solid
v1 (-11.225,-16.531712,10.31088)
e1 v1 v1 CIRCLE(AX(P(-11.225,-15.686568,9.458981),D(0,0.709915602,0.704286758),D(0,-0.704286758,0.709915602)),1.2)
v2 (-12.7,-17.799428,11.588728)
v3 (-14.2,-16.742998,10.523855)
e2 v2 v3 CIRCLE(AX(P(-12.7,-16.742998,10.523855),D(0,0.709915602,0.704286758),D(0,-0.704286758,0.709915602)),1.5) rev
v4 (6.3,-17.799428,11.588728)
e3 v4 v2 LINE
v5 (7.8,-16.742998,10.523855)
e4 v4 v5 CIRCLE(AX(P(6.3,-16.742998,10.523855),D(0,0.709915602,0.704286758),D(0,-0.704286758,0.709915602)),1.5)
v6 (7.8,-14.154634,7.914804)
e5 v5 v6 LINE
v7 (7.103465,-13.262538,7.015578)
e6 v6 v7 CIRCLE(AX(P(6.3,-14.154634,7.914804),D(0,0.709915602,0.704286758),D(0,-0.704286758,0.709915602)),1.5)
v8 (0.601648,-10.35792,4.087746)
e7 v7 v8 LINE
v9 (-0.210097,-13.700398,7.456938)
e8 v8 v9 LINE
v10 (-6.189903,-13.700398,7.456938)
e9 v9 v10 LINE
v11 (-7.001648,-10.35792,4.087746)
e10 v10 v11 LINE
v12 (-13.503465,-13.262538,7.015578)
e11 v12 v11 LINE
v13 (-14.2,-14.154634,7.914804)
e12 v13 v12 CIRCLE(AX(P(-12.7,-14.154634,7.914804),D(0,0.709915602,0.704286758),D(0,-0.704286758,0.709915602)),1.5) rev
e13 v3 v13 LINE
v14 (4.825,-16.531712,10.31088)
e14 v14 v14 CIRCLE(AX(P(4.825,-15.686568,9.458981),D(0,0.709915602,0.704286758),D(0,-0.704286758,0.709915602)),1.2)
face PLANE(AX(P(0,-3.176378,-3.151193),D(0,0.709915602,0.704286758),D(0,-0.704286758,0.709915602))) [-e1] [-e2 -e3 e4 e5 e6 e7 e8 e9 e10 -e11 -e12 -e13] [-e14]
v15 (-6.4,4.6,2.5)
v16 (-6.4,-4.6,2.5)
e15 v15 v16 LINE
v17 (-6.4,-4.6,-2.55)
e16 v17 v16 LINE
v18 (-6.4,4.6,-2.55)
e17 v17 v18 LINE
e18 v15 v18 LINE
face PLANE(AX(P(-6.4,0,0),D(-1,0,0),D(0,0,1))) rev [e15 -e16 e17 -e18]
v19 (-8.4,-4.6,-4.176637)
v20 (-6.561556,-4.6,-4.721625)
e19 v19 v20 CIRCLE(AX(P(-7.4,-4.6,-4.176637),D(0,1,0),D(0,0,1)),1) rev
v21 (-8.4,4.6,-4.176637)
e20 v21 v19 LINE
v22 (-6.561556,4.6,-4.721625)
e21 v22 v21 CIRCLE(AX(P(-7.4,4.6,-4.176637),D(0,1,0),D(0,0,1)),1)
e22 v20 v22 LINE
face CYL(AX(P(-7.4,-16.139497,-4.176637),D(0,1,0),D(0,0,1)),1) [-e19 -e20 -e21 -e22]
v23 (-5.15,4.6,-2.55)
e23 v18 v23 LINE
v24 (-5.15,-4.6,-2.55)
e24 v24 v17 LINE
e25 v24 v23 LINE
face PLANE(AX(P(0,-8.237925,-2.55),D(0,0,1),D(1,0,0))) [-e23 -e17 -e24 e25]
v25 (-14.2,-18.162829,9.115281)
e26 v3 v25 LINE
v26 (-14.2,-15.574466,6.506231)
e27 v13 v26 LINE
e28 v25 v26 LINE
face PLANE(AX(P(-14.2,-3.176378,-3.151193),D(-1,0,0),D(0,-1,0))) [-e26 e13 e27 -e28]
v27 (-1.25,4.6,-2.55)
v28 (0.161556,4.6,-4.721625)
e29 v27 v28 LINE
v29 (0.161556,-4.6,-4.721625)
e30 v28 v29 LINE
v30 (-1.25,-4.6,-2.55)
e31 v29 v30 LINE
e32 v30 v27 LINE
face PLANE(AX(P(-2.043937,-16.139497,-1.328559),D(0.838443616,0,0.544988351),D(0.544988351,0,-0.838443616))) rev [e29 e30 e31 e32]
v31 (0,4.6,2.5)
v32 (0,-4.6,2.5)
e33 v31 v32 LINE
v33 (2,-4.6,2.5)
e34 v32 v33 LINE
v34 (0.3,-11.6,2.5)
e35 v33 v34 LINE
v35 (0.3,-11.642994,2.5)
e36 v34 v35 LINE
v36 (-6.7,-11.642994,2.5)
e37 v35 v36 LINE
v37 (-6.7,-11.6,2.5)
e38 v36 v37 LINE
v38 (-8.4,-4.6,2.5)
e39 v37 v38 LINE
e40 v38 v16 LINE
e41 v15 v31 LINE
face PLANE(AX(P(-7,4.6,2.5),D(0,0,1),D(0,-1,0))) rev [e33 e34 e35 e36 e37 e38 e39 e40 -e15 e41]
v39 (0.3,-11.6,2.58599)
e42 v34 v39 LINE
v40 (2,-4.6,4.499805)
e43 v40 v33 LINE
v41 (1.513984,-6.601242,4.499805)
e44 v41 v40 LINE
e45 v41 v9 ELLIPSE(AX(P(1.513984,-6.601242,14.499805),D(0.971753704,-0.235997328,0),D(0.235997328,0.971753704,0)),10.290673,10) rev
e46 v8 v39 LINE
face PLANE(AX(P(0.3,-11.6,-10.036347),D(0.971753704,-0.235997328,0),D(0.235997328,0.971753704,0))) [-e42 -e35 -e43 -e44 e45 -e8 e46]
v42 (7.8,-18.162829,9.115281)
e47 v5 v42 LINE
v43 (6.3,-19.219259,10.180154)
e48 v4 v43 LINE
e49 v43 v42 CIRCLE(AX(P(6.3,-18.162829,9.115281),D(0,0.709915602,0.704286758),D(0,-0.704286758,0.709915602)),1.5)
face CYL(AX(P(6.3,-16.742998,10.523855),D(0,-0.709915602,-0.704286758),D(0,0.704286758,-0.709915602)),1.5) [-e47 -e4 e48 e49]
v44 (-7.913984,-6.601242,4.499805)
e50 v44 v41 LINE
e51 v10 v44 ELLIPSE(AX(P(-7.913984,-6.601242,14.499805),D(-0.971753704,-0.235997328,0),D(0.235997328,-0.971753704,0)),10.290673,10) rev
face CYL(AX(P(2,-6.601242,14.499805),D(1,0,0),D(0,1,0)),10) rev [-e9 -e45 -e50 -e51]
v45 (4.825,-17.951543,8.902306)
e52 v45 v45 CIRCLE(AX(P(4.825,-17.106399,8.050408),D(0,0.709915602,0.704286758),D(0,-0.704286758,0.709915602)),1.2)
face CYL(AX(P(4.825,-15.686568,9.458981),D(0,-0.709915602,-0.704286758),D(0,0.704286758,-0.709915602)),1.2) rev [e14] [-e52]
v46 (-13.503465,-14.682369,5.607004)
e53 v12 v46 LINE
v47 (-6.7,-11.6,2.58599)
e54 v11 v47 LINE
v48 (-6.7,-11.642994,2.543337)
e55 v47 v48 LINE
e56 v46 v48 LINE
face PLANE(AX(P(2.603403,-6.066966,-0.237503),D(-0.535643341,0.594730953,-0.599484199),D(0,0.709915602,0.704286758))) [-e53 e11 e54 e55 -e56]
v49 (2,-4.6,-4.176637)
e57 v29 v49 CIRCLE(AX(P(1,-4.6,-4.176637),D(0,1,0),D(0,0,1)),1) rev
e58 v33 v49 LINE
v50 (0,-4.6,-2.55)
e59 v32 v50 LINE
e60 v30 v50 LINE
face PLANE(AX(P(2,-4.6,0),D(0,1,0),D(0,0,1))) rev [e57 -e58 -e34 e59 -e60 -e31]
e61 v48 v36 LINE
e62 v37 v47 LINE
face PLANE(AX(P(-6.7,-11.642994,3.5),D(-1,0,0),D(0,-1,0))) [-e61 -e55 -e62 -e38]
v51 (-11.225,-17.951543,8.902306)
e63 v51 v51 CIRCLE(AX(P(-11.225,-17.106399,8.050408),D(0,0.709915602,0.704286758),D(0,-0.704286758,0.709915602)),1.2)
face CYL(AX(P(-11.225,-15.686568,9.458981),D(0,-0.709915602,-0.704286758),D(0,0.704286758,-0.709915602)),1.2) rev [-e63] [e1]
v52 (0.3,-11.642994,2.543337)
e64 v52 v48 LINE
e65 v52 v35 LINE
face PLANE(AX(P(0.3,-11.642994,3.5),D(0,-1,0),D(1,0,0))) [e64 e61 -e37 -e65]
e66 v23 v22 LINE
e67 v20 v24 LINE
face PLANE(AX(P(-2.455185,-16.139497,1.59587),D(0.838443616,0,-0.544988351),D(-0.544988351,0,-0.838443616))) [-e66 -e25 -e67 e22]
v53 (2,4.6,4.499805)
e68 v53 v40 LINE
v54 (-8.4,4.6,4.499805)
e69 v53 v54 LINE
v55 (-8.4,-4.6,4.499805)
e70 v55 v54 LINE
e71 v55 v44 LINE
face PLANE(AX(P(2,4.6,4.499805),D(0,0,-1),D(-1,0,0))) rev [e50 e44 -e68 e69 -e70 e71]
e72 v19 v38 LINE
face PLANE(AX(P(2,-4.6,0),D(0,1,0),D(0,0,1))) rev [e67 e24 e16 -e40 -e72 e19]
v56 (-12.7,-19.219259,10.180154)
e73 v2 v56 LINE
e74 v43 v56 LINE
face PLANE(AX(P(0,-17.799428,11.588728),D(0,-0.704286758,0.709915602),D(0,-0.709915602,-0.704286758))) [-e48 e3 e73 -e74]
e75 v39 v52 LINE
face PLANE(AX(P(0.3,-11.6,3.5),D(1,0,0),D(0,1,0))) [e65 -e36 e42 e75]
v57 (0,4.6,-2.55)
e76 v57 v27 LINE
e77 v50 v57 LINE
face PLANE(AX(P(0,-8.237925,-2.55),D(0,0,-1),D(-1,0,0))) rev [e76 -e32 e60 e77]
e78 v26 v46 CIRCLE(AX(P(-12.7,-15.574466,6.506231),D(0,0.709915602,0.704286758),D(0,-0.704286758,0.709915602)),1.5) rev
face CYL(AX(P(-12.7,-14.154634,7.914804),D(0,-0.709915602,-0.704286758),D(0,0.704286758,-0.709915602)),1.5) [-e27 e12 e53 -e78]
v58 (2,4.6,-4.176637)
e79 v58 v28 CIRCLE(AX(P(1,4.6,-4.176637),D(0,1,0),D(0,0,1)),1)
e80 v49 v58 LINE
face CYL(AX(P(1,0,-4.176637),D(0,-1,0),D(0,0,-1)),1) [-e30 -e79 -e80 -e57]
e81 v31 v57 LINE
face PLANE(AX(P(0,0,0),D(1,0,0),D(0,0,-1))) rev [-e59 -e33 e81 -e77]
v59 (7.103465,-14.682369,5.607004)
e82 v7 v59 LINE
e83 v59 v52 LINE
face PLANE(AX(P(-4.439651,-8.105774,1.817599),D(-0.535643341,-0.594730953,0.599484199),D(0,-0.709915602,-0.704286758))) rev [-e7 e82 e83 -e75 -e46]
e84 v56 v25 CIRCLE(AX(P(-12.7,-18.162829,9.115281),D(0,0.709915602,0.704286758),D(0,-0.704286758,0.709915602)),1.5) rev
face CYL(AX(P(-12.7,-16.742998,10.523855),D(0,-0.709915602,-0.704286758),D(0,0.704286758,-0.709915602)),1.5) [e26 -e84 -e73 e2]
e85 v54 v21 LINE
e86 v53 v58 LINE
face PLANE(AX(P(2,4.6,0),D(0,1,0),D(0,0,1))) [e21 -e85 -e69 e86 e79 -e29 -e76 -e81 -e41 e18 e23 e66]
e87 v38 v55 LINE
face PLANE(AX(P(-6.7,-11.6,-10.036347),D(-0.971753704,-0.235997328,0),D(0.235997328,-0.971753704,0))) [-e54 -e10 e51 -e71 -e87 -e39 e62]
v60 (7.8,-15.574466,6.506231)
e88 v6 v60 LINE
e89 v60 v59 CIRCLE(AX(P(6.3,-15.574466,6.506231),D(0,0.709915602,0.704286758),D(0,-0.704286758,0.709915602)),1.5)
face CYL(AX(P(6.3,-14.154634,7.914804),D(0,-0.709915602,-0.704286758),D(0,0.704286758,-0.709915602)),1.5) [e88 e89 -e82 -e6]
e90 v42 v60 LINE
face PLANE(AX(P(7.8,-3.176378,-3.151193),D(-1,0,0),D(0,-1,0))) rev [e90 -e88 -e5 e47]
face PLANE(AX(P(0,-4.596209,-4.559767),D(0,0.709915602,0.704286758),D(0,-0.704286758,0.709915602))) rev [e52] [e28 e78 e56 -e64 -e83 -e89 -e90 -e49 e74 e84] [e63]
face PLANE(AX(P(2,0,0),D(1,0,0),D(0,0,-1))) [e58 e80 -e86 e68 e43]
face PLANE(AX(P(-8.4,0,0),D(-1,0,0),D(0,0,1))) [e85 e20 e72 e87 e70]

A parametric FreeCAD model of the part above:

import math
import FreeCAD as App
import Part
import Sketcher
from FreeCAD import Vector


def edges_at(feature, points):
    """Names of the edges that pass closest to the given points."""
    edges = feature.Shape.Edges
    near = lambda p: min(range(len(edges)), key=lambda i: edges[i].distToShape(Part.Vertex(*p))[0])
    return sorted({f"Edge{near(p) + 1}" for p in points})


def add_polygon(sketch, points):
    """Adds a closed chain of lines whose ends are joined by coincident constraints."""
    first, n = sketch.GeometryCount, len(points)
    for a, b in zip(points, points[1:] + points[:1]):
        sketch.addGeometry(Part.LineSegment(App.Vector(*a, 0), App.Vector(*b, 0)), False)
    for i in range(n):
        sketch.addConstraint(Sketcher.Constraint("Coincident", first + i, 2, first + (i + 1) % n, 1))

doc = App.newDocument("Part")
body = doc.addObject("PartDesign::Body", "Body")

# Sketch on YZ plane
sketch1 = body.newObject("Sketcher::SketchObject", "Sketch")
sketch1.AttachmentSupport = (doc.getObject("YZ_Plane"), [""])
sketch1.MapMode = "FlatFace"
add_polygon(sketch1, [(4.6, 4.499805), (-4.6, 4.499805), (-4.6, -4.499805), (4.6, -4.499805)])  # lines 0-3
sketch1.addConstraint(Sketcher.Constraint("Horizontal", 0))
sketch1.addConstraint(Sketcher.Constraint("Vertical", 1))
sketch1.addConstraint(Sketcher.Constraint("Horizontal", 2))
sketch1.addConstraint(Sketcher.Constraint("Vertical", 3))
sketch1.addConstraint(Sketcher.Constraint("Symmetric", 0, 2, 2, 2, -1, 1))
sketch1.addConstraint(Sketcher.Constraint("DistanceX", 0, 2, 0, 1, 9.2))
sketch1.addConstraint(Sketcher.Constraint("DistanceY", 1, 2, 1, 1, 8.999611))
pad1 = body.newObject("PartDesign::Pad", "Pad")
pad1.Profile = sketch1
pad1.Length = 2
body2 = doc.addObject("PartDesign::Body", "Body001")

# Sketch on YZ plane
sketch2 = body2.newObject("Sketcher::SketchObject", "Sketch001")
sketch2.AttachmentSupport = (doc.getObject("YZ_Plane001"), [""])
sketch2.MapMode = "FlatFace"
sketch2.AttachmentOffset = App.Placement(Vector(0, 0, -6.4), App.Rotation())
add_polygon(sketch2, [(4.6, -4.499805), (-4.6, -4.499805), (-4.6, 4.499805), (4.6, 4.499805)])  # lines 0-3
sketch2.addConstraint(Sketcher.Constraint("Horizontal", 0))
sketch2.addConstraint(Sketcher.Constraint("Vertical", 1))
sketch2.addConstraint(Sketcher.Constraint("Horizontal", 2))
sketch2.addConstraint(Sketcher.Constraint("Vertical", 3))
sketch2.addConstraint(Sketcher.Constraint("Symmetric", 0, 2, 2, 2, -1, 1))
sketch2.addConstraint(Sketcher.Constraint("DistanceX", 0, 2, 0, 1, 9.2))
sketch2.addConstraint(Sketcher.Constraint("DistanceY", 1, 1, 1, 2, 8.999611))
pad2 = body2.newObject("PartDesign::Pad", "Pad001")
pad2.Profile = sketch2
pad2.Length = 2
pad2.Reversed = True
body.AllowCompound = True
doc.recompute()

boolean = body.newObject("PartDesign::Boolean", "Boolean")
boolean.Type = "Fuse"
boolean.addObjects([body2])

# Sketch on YZ plane
sketch3 = body.newObject("Sketcher::SketchObject", "Sketch002")
sketch3.AttachmentSupport = (doc.getObject("YZ_Plane"), [""])
sketch3.MapMode = "FlatFace"
add_polygon(sketch3, [(4.6, 2.5), (-4.6, 2.5), (-4.6, 4.499805), (4.6, 4.499805)])  # lines 0-3
sketch3.addConstraint(Sketcher.Constraint("Horizontal", 0))
sketch3.addConstraint(Sketcher.Constraint("Vertical", 1))
sketch3.addConstraint(Sketcher.Constraint("Horizontal", 2))
sketch3.addConstraint(Sketcher.Constraint("Vertical", 3))
sketch3.addConstraint(Sketcher.Constraint("DistanceX", 0, 2, 0, 1, 9.2))
sketch3.addConstraint(Sketcher.Constraint("DistanceX", 0, 2, -1, 1, 4.6))
sketch3.addConstraint(Sketcher.Constraint("DistanceY", -1, 1, 0, 2, 2.5))
sketch3.addConstraint(Sketcher.Constraint("DistanceY", 1, 1, 1, 2, 1.999805))
pad3 = body.newObject("PartDesign::Pad", "Pad002")
pad3.Profile = sketch3
pad3.Length = 7
pad3.Reversed = True

# Sketch on XZ plane
sketch4 = body.newObject("Sketcher::SketchObject", "Sketch003")
sketch4.AttachmentSupport = (doc.getObject("XZ_Plane"), [""])
sketch4.MapMode = "FlatFace"
sketch4.AttachmentOffset = App.Placement(Vector(0, 0, -4.6), App.Rotation())
add_polygon(sketch4, [(-5.15, -2.55), (-1.25, -2.55), (0, -4.473077), (0.017373, -4.499805), (2, -7.55), (-8.4, -7.55), (-6.417373, -4.499805), (-6.4, -4.473077)])  # lines 0-7
sketch4.addConstraint(Sketcher.Constraint("Horizontal", 0))
sketch4.addConstraint(Sketcher.Constraint("Horizontal", 4))
sketch4.addConstraint(Sketcher.Constraint("PointOnObject", 1, 2, -2))
sketch4.addConstraint(Sketcher.Constraint("Parallel", 1, 2))
sketch4.addConstraint(Sketcher.Constraint("Parallel", 2, 3))
sketch4.addConstraint(Sketcher.Constraint("Parallel", 5, 6))
sketch4.addConstraint(Sketcher.Constraint("Parallel", 6, 7))
sketch4.addConstraint(Sketcher.Constraint("Horizontal", 2, 2, 5, 2))
sketch4.addConstraint(Sketcher.Constraint("Horizontal", 1, 2, 6, 2))
sketch4.addConstraint(Sketcher.Constraint("Equal", 3, 5))
sketch4.addConstraint(Sketcher.Constraint("DistanceX", 0, 1, 0, 2, 3.9))
sketch4.addConstraint(Sketcher.Constraint("DistanceX", 4, 2, 4, 1, 10.4))
sketch4.addConstraint(Sketcher.Constraint("DistanceX", -1, 1, 3, 2, 2.0))
sketch4.addConstraint(Sketcher.Constraint("DistanceY", 3, 2, 0, 2, 5.0))
sketch4.addConstraint(Sketcher.Constraint("DistanceY", 0, 2, -1, 1, 2.55))
sketch4.addConstraint(Sketcher.Constraint("Distance", 2, 0.031879))
pocket1 = body.newObject("PartDesign::Pocket", "Pocket")
pocket1.Profile = sketch4
pocket1.Length = 9.2
pocket1.Reversed = True

# Sketch on XZ plane
sketch5 = body.newObject("Sketcher::SketchObject", "Sketch004")
sketch5.AttachmentSupport = (doc.getObject("XZ_Plane"), [""])
sketch5.MapMode = "FlatFace"
sketch5.AttachmentOffset = App.Placement(Vector(0, 0, -4.6), App.Rotation())
add_polygon(sketch5, [(-6.4, -2.55), (-5.15, -2.55), (-6.4, -4.473077)])  # lines 0-2
add_polygon(sketch5, [(-8.4, -4.499805), (-6.417373, -4.499805), (-8.4, -7.55)])  # lines 3-5
add_polygon(sketch5, [(-1.25, -2.55), (0, -2.55), (0, -4.473077)])  # lines 6-8
add_polygon(sketch5, [(0.017373, -4.499805), (2, -4.499805), (2, -7.55)])  # lines 9-11
sketch5.addConstraint(Sketcher.Constraint("Horizontal", 0))
sketch5.addConstraint(Sketcher.Constraint("Vertical", 2))
sketch5.addConstraint(Sketcher.Constraint("Horizontal", 3))
sketch5.addConstraint(Sketcher.Constraint("Vertical", 5))
sketch5.addConstraint(Sketcher.Constraint("Horizontal", 6))
sketch5.addConstraint(Sketcher.Constraint("Vertical", 7))
sketch5.addConstraint(Sketcher.Constraint("Horizontal", 9))
sketch5.addConstraint(Sketcher.Constraint("Vertical", 10))
sketch5.addConstraint(Sketcher.Constraint("PointOnObject", 6, 2, -2))
sketch5.addConstraint(Sketcher.Constraint("Parallel", 1, 4))
sketch5.addConstraint(Sketcher.Constraint("Parallel", 8, 11))
sketch5.addConstraint(Sketcher.Constraint("Horizontal", 2, 2, 6, 2))
sketch5.addConstraint(Sketcher.Constraint("Horizontal", 1, 2, 7, 2))
sketch5.addConstraint(Sketcher.Constraint("Horizontal", 5, 2, 9, 2))
sketch5.addConstraint(Sketcher.Constraint("Horizontal", 4, 2, 10, 2))
sketch5.addConstraint(Sketcher.Constraint("Equal", 0, 6))
sketch5.addConstraint(Sketcher.Constraint("DistanceX", -1, 1, 9, 2, 2.0))
sketch5.addConstraint(Sketcher.Constraint("DistanceX", 4, 2, 1, 2, 2.0))
sketch5.addConstraint(Sketcher.Constraint("DistanceY", 4, 2, 2, 2, 5.0))
sketch5.addConstraint(Sketcher.Constraint("DistanceX", 0, 1, 0, 2, 1.25))
sketch5.addConstraint(Sketcher.Constraint("DistanceX", 1, 2, -1, 1, 6.4))
sketch5.addConstraint(Sketcher.Constraint("DistanceY", 0, 2, -1, 1, 2.55))
sketch5.addConstraint(Sketcher.Constraint("DistanceX", 3, 1, 3, 2, 1.982627))
sketch5.addConstraint(Sketcher.Constraint("DistanceY", 2, 1, 2, 2, 1.923077))
pad4 = body.newObject("PartDesign::Pad", "Pad003")
pad4.Profile = sketch5
pad4.Length = 9.2
doc.recompute()

fillet = body.newObject("PartDesign::Fillet", "Fillet")
fillet.Base = (pad4, edges_at(pad4, [(-8.4, 0, -7.55), (2, 0, -7.55)]))
fillet.Radius = 1

# Sketch on XY plane
sketch6 = body.newObject("Sketcher::SketchObject", "Sketch005")
sketch6.AttachmentSupport = (doc.getObject("XY_Plane"), [""])
sketch6.MapMode = "FlatFace"
sketch6.AttachmentOffset = App.Placement(Vector(0, 0, 4.499805), App.Rotation())
add_polygon(sketch6, [(-6.7, -11.6), (0.3, -11.6), (2, -4.6), (-8.4, -4.6)])  # lines 0-3
sketch6.addConstraint(Sketcher.Constraint("Horizontal", 0))
sketch6.addConstraint(Sketcher.Constraint("Horizontal", 2))
sketch6.addConstraint(Sketcher.Constraint("Equal", 1, 3))
sketch6.addConstraint(Sketcher.Constraint("DistanceX", 0, 1, 0, 2, 7.0))
sketch6.addConstraint(Sketcher.Constraint("DistanceX", 2, 2, 2, 1, 10.4))
sketch6.addConstraint(Sketcher.Constraint("DistanceX", -1, 1, 1, 2, 2.0))
sketch6.addConstraint(Sketcher.Constraint("DistanceY", 0, 2, 1, 2, 7.0))
sketch6.addConstraint(Sketcher.Constraint("DistanceY", 0, 2, -1, 1, 11.6))
pad5 = body.newObject("PartDesign::Pad", "Pad004")
pad5.Profile = sketch6
pad5.Length = 1.999805
pad5.Reversed = True

# Sketch on an angled plane
sketch7 = body.newObject("Sketcher::SketchObject", "Sketch006")
sketch7.Placement = App.Placement(Vector(0, -4.596209, -4.559767), App.Rotation(Vector(1, 0, 0), Vector(0, 0.704286758, -0.709915602), Vector(0, 0.709915602, 0.704286758), "ZXY"))
sketch7.addGeometry(Part.LineSegment(Vector(7.8, -19.26292, 0), Vector(7.8, -15.587764, 0)), False)
sketch7.addGeometry(Part.ArcOfCircle(Part.Circle(Vector(6.3, -15.587764, 0), Vector(0, 0, 1), 1.5), math.radians(0), math.radians(57.612448)), False)
sketch7.addGeometry(Part.LineSegment(Vector(7.103465, -14.321098, 0), Vector(0.3, -10.005561, 0)), False)
sketch7.addGeometry(Part.LineSegment(Vector(0.3, -10.005561, 0), Vector(-6.7, -10.005561, 0)), False)
sketch7.addGeometry(Part.LineSegment(Vector(-6.7, -10.005561, 0), Vector(-13.503465, -14.321098, 0)), False)
sketch7.addGeometry(Part.ArcOfCircle(Part.Circle(Vector(-12.7, -15.587764, 0), Vector(0, 0, 1), 1.5), math.radians(122.387552), math.radians(180)), False)
sketch7.addGeometry(Part.LineSegment(Vector(-14.2, -15.587764, 0), Vector(-14.2, -19.26292, 0)), False)
sketch7.addGeometry(Part.ArcOfCircle(Part.Circle(Vector(-12.7, -19.26292, 0), Vector(0, 0, 1), 1.5), math.radians(-180), math.radians(-90)), False)
sketch7.addGeometry(Part.LineSegment(Vector(-12.7, -20.76292, 0), Vector(6.3, -20.76292, 0)), False)
sketch7.addGeometry(Part.ArcOfCircle(Part.Circle(Vector(6.3, -19.26292, 0), Vector(0, 0, 1), 1.5), math.radians(-90), math.radians(0)), False)
sketch7.addGeometry(Part.Circle(Vector(-11.225, -17.76292, 0), Vector(0, 0, 1), 1.2), False)
sketch7.addGeometry(Part.Circle(Vector(4.825, -17.76292, 0), Vector(0, 0, 1), 1.2), False)
sketch7.addConstraint(Sketcher.Constraint("Tangent", 0, 2, 1, 1))
sketch7.addConstraint(Sketcher.Constraint("Tangent", 1, 2, 2, 1))
sketch7.addConstraint(Sketcher.Constraint("Coincident", 2, 2, 3, 1))
sketch7.addConstraint(Sketcher.Constraint("Coincident", 3, 2, 4, 1))
sketch7.addConstraint(Sketcher.Constraint("Tangent", 4, 2, 5, 1))
sketch7.addConstraint(Sketcher.Constraint("Tangent", 5, 2, 6, 1))
sketch7.addConstraint(Sketcher.Constraint("Tangent", 6, 2, 7, 1))
sketch7.addConstraint(Sketcher.Constraint("Tangent", 7, 2, 8, 1))
sketch7.addConstraint(Sketcher.Constraint("Tangent", 8, 2, 9, 1))
sketch7.addConstraint(Sketcher.Constraint("Tangent", 9, 2, 0, 1))
sketch7.addConstraint(Sketcher.Constraint("Vertical", 0))
sketch7.addConstraint(Sketcher.Constraint("Horizontal", 3))
sketch7.addConstraint(Sketcher.Constraint("Vertical", 6))
sketch7.addConstraint(Sketcher.Constraint("Horizontal", 8))
sketch7.addConstraint(Sketcher.Constraint("Equal", 1, 5))
sketch7.addConstraint(Sketcher.Constraint("Equal", 5, 7))
sketch7.addConstraint(Sketcher.Constraint("Equal", 7, 9))
sketch7.addConstraint(Sketcher.Constraint("Equal", 10, 11))
sketch7.addConstraint(Sketcher.Constraint("Horizontal", 1, 3, 5, 3))
sketch7.addConstraint(Sketcher.Constraint("Horizontal", 10, 3, 11, 3))
sketch7.addConstraint(Sketcher.Constraint("Horizontal", 1, 2, 4, 2))
sketch7.addConstraint(Sketcher.Constraint("Diameter", 10, 2.4))
sketch7.addConstraint(Sketcher.Constraint("Radius", 1, 1.5))
sketch7.addConstraint(Sketcher.Constraint("DistanceX", 3, 2, 3, 1, 7.0))
sketch7.addConstraint(Sketcher.Constraint("DistanceX", 8, 1, 8, 2, 19.0))
sketch7.addConstraint(Sketcher.Constraint("DistanceY", 7, 2, 10, 3, 3.0))
sketch7.addConstraint(Sketcher.Constraint("DistanceX", -1, 1, 1, 3, 6.3))
sketch7.addConstraint(Sketcher.Constraint("DistanceX", 10, 3, 11, 3, 16.05))
sketch7.addConstraint(Sketcher.Constraint("DistanceX", 10, 3, -1, 1, 11.225))
sketch7.addConstraint(Sketcher.Constraint("DistanceY", 0, 1, 0, 2, 3.675156))
sketch7.addConstraint(Sketcher.Constraint("DistanceY", 7, 3, -1, 1, 19.26292))
sketch7.addConstraint(Sketcher.Constraint("DistanceY", 2, 2, -1, 1, 10.005561))
pad6 = body.newObject("PartDesign::Pad", "Pad005")
pad6.Profile = sketch7
pad6.Length = 2
doc.recompute()

fillet2 = body.newObject("PartDesign::Fillet", "Fillet001")
fillet2.Base = (pad6, edges_at(pad6, [(-3.2, -10.767, 4.5)]))
fillet2.Radius = 10

# Sketch on XY plane
sketch8 = body.newObject("Sketcher::SketchObject", "Sketch007")
sketch8.AttachmentSupport = (doc.getObject("XY_Plane"), [""])
sketch8.MapMode = "FlatFace"
sketch8.AttachmentOffset = App.Placement(Vector(0, 0, 2.5), App.Rotation())
add_polygon(sketch8, [(0.3, -11.6), (0.3, -11.642994), (-6.7, -11.642994), (-6.7, -11.6)])  # lines 0-3
sketch8.addConstraint(Sketcher.Constraint("Vertical", 0))
sketch8.addConstraint(Sketcher.Constraint("Horizontal", 1))
sketch8.addConstraint(Sketcher.Constraint("Vertical", 2))
sketch8.addConstraint(Sketcher.Constraint("Horizontal", 3))
sketch8.addConstraint(Sketcher.Constraint("DistanceX", 1, 2, 1, 1, 7.0))
sketch8.addConstraint(Sketcher.Constraint("DistanceX", -1, 1, 0, 2, 0.3))
sketch8.addConstraint(Sketcher.Constraint("DistanceY", 2, 2, -1, 1, 11.6))
sketch8.addConstraint(Sketcher.Constraint("DistanceY", 0, 2, 0, 1, 0.042994))
pad7 = body.newObject("PartDesign::Pad", "Pad006")
pad7.Profile = sketch8
pad7.Length = 1

doc.recompute()
